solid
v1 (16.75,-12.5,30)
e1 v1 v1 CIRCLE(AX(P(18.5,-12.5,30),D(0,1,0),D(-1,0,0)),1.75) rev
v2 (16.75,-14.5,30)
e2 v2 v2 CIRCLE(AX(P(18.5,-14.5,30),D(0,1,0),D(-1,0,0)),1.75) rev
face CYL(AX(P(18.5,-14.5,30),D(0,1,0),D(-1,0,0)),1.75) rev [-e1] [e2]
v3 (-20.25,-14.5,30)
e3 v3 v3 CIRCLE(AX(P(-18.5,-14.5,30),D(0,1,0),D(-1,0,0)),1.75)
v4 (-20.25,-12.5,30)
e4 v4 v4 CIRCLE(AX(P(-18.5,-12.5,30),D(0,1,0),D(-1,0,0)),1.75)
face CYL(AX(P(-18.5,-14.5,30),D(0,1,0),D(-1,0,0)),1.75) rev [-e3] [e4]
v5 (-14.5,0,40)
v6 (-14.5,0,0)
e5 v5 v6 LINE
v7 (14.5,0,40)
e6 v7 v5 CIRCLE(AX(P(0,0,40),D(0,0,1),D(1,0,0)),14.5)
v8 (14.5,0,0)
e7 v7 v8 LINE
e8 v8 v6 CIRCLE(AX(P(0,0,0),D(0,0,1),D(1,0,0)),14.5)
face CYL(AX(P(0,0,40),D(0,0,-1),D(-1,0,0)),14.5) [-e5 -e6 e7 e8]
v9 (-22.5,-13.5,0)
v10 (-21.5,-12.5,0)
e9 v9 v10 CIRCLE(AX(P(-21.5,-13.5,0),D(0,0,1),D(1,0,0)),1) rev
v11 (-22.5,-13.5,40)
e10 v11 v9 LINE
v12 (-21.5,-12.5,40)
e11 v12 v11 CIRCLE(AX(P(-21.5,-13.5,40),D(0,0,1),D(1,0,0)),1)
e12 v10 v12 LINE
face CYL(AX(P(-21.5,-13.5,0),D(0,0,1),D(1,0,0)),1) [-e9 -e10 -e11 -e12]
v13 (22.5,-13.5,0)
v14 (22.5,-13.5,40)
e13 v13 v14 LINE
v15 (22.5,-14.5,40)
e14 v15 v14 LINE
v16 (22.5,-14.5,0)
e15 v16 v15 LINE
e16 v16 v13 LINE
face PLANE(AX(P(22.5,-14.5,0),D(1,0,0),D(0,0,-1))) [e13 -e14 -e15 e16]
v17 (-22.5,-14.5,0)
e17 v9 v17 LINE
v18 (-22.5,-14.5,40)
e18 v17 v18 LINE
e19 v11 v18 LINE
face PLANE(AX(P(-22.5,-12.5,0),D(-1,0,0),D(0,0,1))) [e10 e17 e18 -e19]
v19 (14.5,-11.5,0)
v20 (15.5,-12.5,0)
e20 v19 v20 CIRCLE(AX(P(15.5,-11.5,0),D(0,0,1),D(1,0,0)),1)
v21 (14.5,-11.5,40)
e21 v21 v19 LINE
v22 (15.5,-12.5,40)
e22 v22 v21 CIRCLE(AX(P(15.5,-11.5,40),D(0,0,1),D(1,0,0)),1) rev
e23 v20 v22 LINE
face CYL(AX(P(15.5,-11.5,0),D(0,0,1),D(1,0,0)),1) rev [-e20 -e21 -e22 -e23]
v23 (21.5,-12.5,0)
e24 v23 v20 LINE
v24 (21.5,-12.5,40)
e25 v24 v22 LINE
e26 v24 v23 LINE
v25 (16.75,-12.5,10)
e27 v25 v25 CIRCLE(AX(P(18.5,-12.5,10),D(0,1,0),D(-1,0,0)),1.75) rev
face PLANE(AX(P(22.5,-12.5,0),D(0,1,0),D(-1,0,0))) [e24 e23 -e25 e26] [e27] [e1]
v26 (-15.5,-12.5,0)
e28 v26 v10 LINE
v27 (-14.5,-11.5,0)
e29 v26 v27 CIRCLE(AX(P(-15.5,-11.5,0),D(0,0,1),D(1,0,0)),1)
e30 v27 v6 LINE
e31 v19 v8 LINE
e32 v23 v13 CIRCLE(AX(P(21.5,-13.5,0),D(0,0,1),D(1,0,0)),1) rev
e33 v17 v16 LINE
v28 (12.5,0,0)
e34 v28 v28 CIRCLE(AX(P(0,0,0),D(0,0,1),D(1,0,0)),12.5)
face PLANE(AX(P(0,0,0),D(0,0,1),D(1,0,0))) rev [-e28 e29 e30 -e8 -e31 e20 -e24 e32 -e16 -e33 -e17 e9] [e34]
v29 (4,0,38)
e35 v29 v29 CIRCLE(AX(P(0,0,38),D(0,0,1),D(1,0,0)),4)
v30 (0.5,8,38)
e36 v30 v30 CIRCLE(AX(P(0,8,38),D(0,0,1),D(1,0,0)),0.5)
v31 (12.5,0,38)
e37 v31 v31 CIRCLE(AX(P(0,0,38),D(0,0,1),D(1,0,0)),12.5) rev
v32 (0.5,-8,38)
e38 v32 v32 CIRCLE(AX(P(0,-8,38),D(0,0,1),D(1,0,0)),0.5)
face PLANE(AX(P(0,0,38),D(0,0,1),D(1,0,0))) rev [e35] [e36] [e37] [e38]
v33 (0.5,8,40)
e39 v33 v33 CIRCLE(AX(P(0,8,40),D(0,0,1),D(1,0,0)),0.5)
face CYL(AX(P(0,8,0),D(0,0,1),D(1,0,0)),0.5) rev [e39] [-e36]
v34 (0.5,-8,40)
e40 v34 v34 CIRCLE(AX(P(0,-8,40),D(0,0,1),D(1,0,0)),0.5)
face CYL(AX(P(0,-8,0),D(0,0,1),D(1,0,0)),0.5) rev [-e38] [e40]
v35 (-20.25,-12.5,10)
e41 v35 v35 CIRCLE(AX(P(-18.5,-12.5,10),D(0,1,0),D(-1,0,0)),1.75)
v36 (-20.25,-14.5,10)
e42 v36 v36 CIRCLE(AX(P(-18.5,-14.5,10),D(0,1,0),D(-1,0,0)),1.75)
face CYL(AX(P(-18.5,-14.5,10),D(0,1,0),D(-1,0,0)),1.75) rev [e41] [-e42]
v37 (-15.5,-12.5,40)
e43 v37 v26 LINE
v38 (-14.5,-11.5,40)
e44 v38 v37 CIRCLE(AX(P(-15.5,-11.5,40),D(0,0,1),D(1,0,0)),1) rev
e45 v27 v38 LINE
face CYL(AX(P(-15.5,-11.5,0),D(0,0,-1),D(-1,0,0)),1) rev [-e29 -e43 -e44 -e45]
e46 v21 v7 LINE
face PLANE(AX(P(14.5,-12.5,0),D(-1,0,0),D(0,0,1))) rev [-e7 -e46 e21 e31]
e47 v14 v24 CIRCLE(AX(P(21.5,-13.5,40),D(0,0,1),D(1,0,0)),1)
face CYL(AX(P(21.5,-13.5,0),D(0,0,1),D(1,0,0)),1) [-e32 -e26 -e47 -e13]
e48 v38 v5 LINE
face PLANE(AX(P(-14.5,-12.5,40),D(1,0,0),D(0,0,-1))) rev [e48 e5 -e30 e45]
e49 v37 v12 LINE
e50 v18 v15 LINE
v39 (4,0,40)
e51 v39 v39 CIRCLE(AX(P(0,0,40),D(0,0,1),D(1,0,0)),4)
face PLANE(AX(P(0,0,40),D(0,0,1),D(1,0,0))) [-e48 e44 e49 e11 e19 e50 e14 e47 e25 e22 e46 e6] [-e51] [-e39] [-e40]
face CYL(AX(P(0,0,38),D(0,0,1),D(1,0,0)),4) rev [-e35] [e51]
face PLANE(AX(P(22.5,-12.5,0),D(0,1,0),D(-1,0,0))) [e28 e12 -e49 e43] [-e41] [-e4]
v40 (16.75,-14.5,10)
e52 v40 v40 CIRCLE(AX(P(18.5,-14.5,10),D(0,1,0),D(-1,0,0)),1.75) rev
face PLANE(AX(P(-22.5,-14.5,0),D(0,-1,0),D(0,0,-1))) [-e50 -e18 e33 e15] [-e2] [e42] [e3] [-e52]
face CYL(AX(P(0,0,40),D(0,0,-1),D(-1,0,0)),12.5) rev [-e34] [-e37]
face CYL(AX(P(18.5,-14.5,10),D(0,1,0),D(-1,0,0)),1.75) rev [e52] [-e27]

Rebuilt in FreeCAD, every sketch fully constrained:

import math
import FreeCAD as App
import Part
import Sketcher


def edges_at(feature, points):
    """Names of the edges that pass closest to the given points."""
    edges = feature.Shape.Edges
    near = lambda p: min(range(len(edges)), key=lambda i: edges[i].distToShape(Part.Vertex(*p))[0])
    return sorted({f"Edge{near(p) + 1}" for p in points})

doc = App.newDocument("Part")
body = doc.addObject("PartDesign::Body", "Body")

# Sketch on XY plane
sketch1 = body.newObject("Sketcher::SketchObject", "Sketch")
sketch1.AttachmentSupport = (doc.getObject("XY_Plane"), [""])
sketch1.MapMode = "FlatFace"
sketch1.addGeometry([
    Part.ArcOfCircle(Part.Circle(App.Vector(0, 0, 0), App.Vector(0, 0, 1), 12.5), math.radians(0), math.radians(180)),
    Part.LineSegment(App.Vector(12.5, 0, 0), App.Vector(14.5, 0, 0)),
    Part.ArcOfCircle(Part.Circle(App.Vector(0, 0, 0), App.Vector(0, 0, 1), 14.5), math.radians(0), math.radians(180)),
    Part.LineSegment(App.Vector(-14.5, 0, 0), App.Vector(-12.5, 0, 0)),
], False)
sketch1.addConstraint([
    Sketcher.Constraint("Coincident", 0, 1, 1, 1),
    Sketcher.Constraint("Coincident", 1, 2, 2, 1),
    Sketcher.Constraint("Coincident", 2, 2, 3, 1),
    Sketcher.Constraint("Coincident", 3, 2, 0, 2),
    Sketcher.Constraint("Horizontal", 1),
    Sketcher.Constraint("Horizontal", 3),
    Sketcher.Constraint("Coincident", 0, 3, -1, 1),
    Sketcher.Constraint("Coincident", 2, 3, -1, 1),
    Sketcher.Constraint("PointOnObject", 0, 1, -1),
    Sketcher.Constraint("PointOnObject", 2, 2, -1),
    Sketcher.Constraint("Radius", 0, 12.5),
    Sketcher.Constraint("Radius", 2, 14.5),
])
pad1 = body.newObject("PartDesign::Pad", "Pad")
pad1.Profile = sketch1
pad1.Length = 40

# Sketch on XZ plane
sketch2 = body.newObject("Sketcher::SketchObject", "Sketch001")
sketch2.AttachmentSupport = (doc.getObject("XZ_Plane"), [""])
sketch2.MapMode = "FlatFace"
sketch2.addGeometry([
    Part.LineSegment(App.Vector(-14.5, 40, 0), App.Vector(-14.5, 0, 0)),  # 0
    Part.LineSegment(App.Vector(-14.5, 0, 0), App.Vector(-12.5, 0, 0)),  # 1
    Part.LineSegment(App.Vector(-12.5, 0, 0), App.Vector(-12.5, 40, 0)),  # 2
    Part.LineSegment(App.Vector(-12.5, 40, 0), App.Vector(-14.5, 40, 0)),  # 3
    Part.LineSegment(App.Vector(12.5, 40, 0), App.Vector(12.5, 0, 0)),  # 4
    Part.LineSegment(App.Vector(12.5, 0, 0), App.Vector(14.5, 0, 0)),  # 5
    Part.LineSegment(App.Vector(14.5, 0, 0), App.Vector(14.5, 40, 0)),  # 6
    Part.LineSegment(App.Vector(14.5, 40, 0), App.Vector(12.5, 40, 0)),  # 7
], False)
sketch2.addConstraint([
    Sketcher.Constraint("Coincident", 0, 2, 1, 1),
    Sketcher.Constraint("Coincident", 1, 2, 2, 1),
    Sketcher.Constraint("Coincident", 2, 2, 3, 1),
    Sketcher.Constraint("Coincident", 3, 2, 0, 1),
    Sketcher.Constraint("Coincident", 4, 2, 5, 1),
    Sketcher.Constraint("Coincident", 5, 2, 6, 1),
    Sketcher.Constraint("Coincident", 6, 2, 7, 1),
    Sketcher.Constraint("Coincident", 7, 2, 4, 1),
    Sketcher.Constraint("Vertical", 0),
    Sketcher.Constraint("Horizontal", 1),
    Sketcher.Constraint("Vertical", 2),
    Sketcher.Constraint("Horizontal", 3),
    Sketcher.Constraint("Vertical", 4),
    Sketcher.Constraint("Horizontal", 5),
    Sketcher.Constraint("Vertical", 6),
    Sketcher.Constraint("Horizontal", 7),
    Sketcher.Constraint("Symmetric", 1, 2, 4, 2, -1, 1),
    Sketcher.Constraint("Symmetric", 0, 2, 5, 2, -2),
    Sketcher.Constraint("Horizontal", 3, 2, 6, 2),
    Sketcher.Constraint("DistanceX", 1, 1, 1, 2, 2.0),
    Sketcher.Constraint("DistanceY", 0, 2, 0, 1, 40.0),
    Sketcher.Constraint("DistanceX", 1, 2, 4, 2, 25.0),
])
pad2 = body.newObject("PartDesign::Pad", "Pad001")
pad2.Profile = sketch2
pad2.Length = 12.5

# Sketch on XY plane
sketch3 = body.newObject("Sketcher::SketchObject", "Sketch002")
sketch3.AttachmentSupport = (doc.getObject("XY_Plane"), [""])
sketch3.MapMode = "FlatFace"
sketch3.AttachmentOffset = App.Placement(App.Vector(0, 0, 38), App.Rotation())
sketch3.addGeometry([
    Part.LineSegment(App.Vector(-12.5, 0, 0), App.Vector(-12.5, -12.5, 0)),  # 0
    Part.LineSegment(App.Vector(-12.5, -12.5, 0), App.Vector(12.5, -12.5, 0)),  # 1
    Part.LineSegment(App.Vector(12.5, -12.5, 0), App.Vector(12.5, 0, 0)),  # 2
    Part.ArcOfCircle(Part.Circle(App.Vector(0, 0, 0), App.Vector(0, 0, 1), 12.5), math.radians(0), math.radians(180)),  # 3
    Part.Circle(App.Vector(0, 0, 0), App.Vector(0, 0, 1), 4),  # 4
], False)
sketch3.addConstraint([
    Sketcher.Constraint("Coincident", 0, 2, 1, 1),
    Sketcher.Constraint("Coincident", 1, 2, 2, 1),
    Sketcher.Constraint("Tangent", 2, 2, 3, 1),
    Sketcher.Constraint("Tangent", 3, 2, 0, 1),
    Sketcher.Constraint("Vertical", 0),
    Sketcher.Constraint("Horizontal", 1),
    Sketcher.Constraint("Vertical", 2),
    Sketcher.Constraint("Coincident", 3, 3, -1, 1),
    Sketcher.Constraint("Coincident", 4, 3, -1, 1),
    Sketcher.Constraint("Diameter", 4, 8.0),
    Sketcher.Constraint("Radius", 3, 12.5),
    Sketcher.Constraint("DistanceY", 0, 2, 0, 1, 12.5),
])
pad3 = body.newObject("PartDesign::Pad", "Pad002")
pad3.Profile = sketch3
pad3.Length = 2

# Sketch on XY plane
sketch4 = body.newObject("Sketcher::SketchObject", "Sketch003")
sketch4.AttachmentSupport = (doc.getObject("XY_Plane"), [""])
sketch4.MapMode = "FlatFace"
sketch4.AttachmentOffset = App.Placement(App.Vector(0, 0, 40), App.Rotation())
sketch4.addGeometry([
    Part.Circle(App.Vector(0, -8, 0), App.Vector(0, 0, 1), 0.5),
    Part.Circle(App.Vector(0, 8, 0), App.Vector(0, 0, 1), 0.5),
], False)
sketch4.addConstraint([
    Sketcher.Constraint("Equal", 0, 1),
    Sketcher.Constraint("Symmetric", 0, 3, 1, 3, -1, 1),
    Sketcher.Constraint("PointOnObject", 0, 3, -2),
    Sketcher.Constraint("Diameter", 0, 1.0),
    Sketcher.Constraint("DistanceY", 0, 3, -1, 1, 8.0),
])
pocket1 = body.newObject("PartDesign::Pocket", "Pocket")
pocket1.Profile = sketch4
pocket1.Type = "ThroughAll"

# Sketch on XY plane
sketch5 = body.newObject("Sketcher::SketchObject", "Sketch004")
sketch5.AttachmentSupport = (doc.getObject("XY_Plane"), [""])
sketch5.MapMode = "FlatFace"
sketch5.AttachmentOffset = App.Placement(App.Vector(0, 0, 40), App.Rotation())
sketch5.addGeometry([
    Part.LineSegment(App.Vector(-22.5, -12.5, 0), App.Vector(-22.5, -14.5, 0)),
    Part.LineSegment(App.Vector(-22.5, -14.5, 0), App.Vector(22.5, -14.5, 0)),
    Part.LineSegment(App.Vector(22.5, -14.5, 0), App.Vector(22.5, -12.5, 0)),
    Part.LineSegment(App.Vector(22.5, -12.5, 0), App.Vector(-22.5, -12.5, 0)),
], False)
sketch5.addConstraint([
    Sketcher.Constraint("Coincident", 0, 2, 1, 1),
    Sketcher.Constraint("Coincident", 1, 2, 2, 1),
    Sketcher.Constraint("Coincident", 2, 2, 3, 1),
    Sketcher.Constraint("Coincident", 3, 2, 0, 1),
    Sketcher.Constraint("Vertical", 0),
    Sketcher.Constraint("Horizontal", 1),
    Sketcher.Constraint("Vertical", 2),
    Sketcher.Constraint("Horizontal", 3),
    Sketcher.Constraint("DistanceX", 1, 1, 1, 2, 45.0),
    Sketcher.Constraint("DistanceY", 0, 2, 0, 1, 2.0),
    Sketcher.Constraint("DistanceX", 0, 2, -1, 1, 22.5),
    Sketcher.Constraint("DistanceY", 0, 2, -1, 1, 14.5),
])
pad4 = body.newObject("PartDesign::Pad", "Pad003")
pad4.Profile = sketch5
pad4.Length = 40
pad4.Reversed = True

# Sketch on XY plane
sketch6 = body.newObject("Sketcher::SketchObject", "Sketch005")
sketch6.AttachmentSupport = (doc.getObject("XY_Plane"), [""])
sketch6.MapMode = "FlatFace"
sketch6.addGeometry([
    Part.LineSegment(App.Vector(12, 0, 0), App.Vector(12, -12, 0)),  # 0
    Part.LineSegment(App.Vector(12, -12, 0), App.Vector(0, -12, 0)),  # 1
    Part.ArcOfCircle(Part.Circle(App.Vector(0, 0, 0), App.Vector(0, 0, 1), 13), math.radians(-90), math.radians(0)),  # 2
    Part.ArcOfCircle(Part.Circle(App.Vector(0, 0, 0), App.Vector(0, 0, 1), 13), math.radians(-180), math.radians(-90)),  # 3
    Part.LineSegment(App.Vector(0, -12, 0), App.Vector(-12, -12, 0)),  # 4
    Part.LineSegment(App.Vector(-12, -12, 0), App.Vector(-12, 0, 0)),  # 5
], False)
sketch6.addConstraint([
    Sketcher.Constraint("Coincident", 0, 2, 1, 1),
    Sketcher.Constraint("Tangent", 1, 2, 2, 1),
    Sketcher.Constraint("Tangent", 2, 2, 0, 1),
    Sketcher.Constraint("Tangent", 3, 2, 4, 1),
    Sketcher.Constraint("Coincident", 4, 2, 5, 1),
    Sketcher.Constraint("Tangent", 5, 2, 3, 1),
    Sketcher.Constraint("Vertical", 0),
    Sketcher.Constraint("Horizontal", 1),
    Sketcher.Constraint("Horizontal", 4),
    Sketcher.Constraint("Vertical", 5),
    Sketcher.Constraint("Coincident", 2, 3, -1, 1),
    Sketcher.Constraint("Coincident", 3, 3, -1, 1),
    Sketcher.Constraint("Equal", 2, 3),
    Sketcher.Constraint("Radius", 2, 12.5),
])
pad5 = body.newObject("PartDesign::Pad", "Pad004")
pad5.Profile = sketch6
pad5.Length = 38
doc.recompute()

fillet = body.newObject("PartDesign::Fillet", "Fillet")
fillet.Base = (pad5, edges_at(pad5, [
    (-14.5, -12.5, 20),
    (14.5, -12.5, 20),
    (-22.5, -12.5, 20),
    (22.5, -12.5, 20),
]))
fillet.Radius = 1

# Sketch on XZ plane
sketch7 = body.newObject("Sketcher::SketchObject", "Sketch006")
sketch7.AttachmentSupport = (doc.getObject("XZ_Plane"), [""])
sketch7.MapMode = "FlatFace"
sketch7.AttachmentOffset = App.Placement(App.Vector(0, 0, 12.5), App.Rotation())
sketch7.addGeometry([
    Part.Circle(App.Vector(-18.5, 10, 0), App.Vector(0, 0, 1), 1.8),
    Part.Circle(App.Vector(-18.5, 30, 0), App.Vector(0, 0, 1), 1.8),
    Part.Circle(App.Vector(18.5, 30, 0), App.Vector(0, 0, 1), 1.8),
    Part.Circle(App.Vector(18.5, 10, 0), App.Vector(0, 0, 1), 1.8),
], False)
sketch7.addConstraint([
    Sketcher.Constraint("Equal", 0, 1),
    Sketcher.Constraint("Equal", 1, 2),
    Sketcher.Constraint("Equal", 2, 3),
    Sketcher.Constraint("Symmetric", 1, 3, 2, 3, -2),
    Sketcher.Constraint("Symmetric", 0, 3, 3, 3, -2),
    Sketcher.Constraint("Vertical", 0, 3, 1, 3),
    Sketcher.Constraint("Diameter", 0, 3.5),
    Sketcher.Constraint("DistanceY", -1, 1, 0, 3, 10.0),
    Sketcher.Constraint("DistanceY", -1, 1, 1, 3, 30.0),
    Sketcher.Constraint("DistanceX", 1, 3, 2, 3, 37.0),
])
pocket2 = body.newObject("PartDesign::Pocket", "Pocket001")
pocket2.Profile = sketch7
pocket2.Type = "ThroughAll"
pocket2.Reversed = True

doc.recompute()
